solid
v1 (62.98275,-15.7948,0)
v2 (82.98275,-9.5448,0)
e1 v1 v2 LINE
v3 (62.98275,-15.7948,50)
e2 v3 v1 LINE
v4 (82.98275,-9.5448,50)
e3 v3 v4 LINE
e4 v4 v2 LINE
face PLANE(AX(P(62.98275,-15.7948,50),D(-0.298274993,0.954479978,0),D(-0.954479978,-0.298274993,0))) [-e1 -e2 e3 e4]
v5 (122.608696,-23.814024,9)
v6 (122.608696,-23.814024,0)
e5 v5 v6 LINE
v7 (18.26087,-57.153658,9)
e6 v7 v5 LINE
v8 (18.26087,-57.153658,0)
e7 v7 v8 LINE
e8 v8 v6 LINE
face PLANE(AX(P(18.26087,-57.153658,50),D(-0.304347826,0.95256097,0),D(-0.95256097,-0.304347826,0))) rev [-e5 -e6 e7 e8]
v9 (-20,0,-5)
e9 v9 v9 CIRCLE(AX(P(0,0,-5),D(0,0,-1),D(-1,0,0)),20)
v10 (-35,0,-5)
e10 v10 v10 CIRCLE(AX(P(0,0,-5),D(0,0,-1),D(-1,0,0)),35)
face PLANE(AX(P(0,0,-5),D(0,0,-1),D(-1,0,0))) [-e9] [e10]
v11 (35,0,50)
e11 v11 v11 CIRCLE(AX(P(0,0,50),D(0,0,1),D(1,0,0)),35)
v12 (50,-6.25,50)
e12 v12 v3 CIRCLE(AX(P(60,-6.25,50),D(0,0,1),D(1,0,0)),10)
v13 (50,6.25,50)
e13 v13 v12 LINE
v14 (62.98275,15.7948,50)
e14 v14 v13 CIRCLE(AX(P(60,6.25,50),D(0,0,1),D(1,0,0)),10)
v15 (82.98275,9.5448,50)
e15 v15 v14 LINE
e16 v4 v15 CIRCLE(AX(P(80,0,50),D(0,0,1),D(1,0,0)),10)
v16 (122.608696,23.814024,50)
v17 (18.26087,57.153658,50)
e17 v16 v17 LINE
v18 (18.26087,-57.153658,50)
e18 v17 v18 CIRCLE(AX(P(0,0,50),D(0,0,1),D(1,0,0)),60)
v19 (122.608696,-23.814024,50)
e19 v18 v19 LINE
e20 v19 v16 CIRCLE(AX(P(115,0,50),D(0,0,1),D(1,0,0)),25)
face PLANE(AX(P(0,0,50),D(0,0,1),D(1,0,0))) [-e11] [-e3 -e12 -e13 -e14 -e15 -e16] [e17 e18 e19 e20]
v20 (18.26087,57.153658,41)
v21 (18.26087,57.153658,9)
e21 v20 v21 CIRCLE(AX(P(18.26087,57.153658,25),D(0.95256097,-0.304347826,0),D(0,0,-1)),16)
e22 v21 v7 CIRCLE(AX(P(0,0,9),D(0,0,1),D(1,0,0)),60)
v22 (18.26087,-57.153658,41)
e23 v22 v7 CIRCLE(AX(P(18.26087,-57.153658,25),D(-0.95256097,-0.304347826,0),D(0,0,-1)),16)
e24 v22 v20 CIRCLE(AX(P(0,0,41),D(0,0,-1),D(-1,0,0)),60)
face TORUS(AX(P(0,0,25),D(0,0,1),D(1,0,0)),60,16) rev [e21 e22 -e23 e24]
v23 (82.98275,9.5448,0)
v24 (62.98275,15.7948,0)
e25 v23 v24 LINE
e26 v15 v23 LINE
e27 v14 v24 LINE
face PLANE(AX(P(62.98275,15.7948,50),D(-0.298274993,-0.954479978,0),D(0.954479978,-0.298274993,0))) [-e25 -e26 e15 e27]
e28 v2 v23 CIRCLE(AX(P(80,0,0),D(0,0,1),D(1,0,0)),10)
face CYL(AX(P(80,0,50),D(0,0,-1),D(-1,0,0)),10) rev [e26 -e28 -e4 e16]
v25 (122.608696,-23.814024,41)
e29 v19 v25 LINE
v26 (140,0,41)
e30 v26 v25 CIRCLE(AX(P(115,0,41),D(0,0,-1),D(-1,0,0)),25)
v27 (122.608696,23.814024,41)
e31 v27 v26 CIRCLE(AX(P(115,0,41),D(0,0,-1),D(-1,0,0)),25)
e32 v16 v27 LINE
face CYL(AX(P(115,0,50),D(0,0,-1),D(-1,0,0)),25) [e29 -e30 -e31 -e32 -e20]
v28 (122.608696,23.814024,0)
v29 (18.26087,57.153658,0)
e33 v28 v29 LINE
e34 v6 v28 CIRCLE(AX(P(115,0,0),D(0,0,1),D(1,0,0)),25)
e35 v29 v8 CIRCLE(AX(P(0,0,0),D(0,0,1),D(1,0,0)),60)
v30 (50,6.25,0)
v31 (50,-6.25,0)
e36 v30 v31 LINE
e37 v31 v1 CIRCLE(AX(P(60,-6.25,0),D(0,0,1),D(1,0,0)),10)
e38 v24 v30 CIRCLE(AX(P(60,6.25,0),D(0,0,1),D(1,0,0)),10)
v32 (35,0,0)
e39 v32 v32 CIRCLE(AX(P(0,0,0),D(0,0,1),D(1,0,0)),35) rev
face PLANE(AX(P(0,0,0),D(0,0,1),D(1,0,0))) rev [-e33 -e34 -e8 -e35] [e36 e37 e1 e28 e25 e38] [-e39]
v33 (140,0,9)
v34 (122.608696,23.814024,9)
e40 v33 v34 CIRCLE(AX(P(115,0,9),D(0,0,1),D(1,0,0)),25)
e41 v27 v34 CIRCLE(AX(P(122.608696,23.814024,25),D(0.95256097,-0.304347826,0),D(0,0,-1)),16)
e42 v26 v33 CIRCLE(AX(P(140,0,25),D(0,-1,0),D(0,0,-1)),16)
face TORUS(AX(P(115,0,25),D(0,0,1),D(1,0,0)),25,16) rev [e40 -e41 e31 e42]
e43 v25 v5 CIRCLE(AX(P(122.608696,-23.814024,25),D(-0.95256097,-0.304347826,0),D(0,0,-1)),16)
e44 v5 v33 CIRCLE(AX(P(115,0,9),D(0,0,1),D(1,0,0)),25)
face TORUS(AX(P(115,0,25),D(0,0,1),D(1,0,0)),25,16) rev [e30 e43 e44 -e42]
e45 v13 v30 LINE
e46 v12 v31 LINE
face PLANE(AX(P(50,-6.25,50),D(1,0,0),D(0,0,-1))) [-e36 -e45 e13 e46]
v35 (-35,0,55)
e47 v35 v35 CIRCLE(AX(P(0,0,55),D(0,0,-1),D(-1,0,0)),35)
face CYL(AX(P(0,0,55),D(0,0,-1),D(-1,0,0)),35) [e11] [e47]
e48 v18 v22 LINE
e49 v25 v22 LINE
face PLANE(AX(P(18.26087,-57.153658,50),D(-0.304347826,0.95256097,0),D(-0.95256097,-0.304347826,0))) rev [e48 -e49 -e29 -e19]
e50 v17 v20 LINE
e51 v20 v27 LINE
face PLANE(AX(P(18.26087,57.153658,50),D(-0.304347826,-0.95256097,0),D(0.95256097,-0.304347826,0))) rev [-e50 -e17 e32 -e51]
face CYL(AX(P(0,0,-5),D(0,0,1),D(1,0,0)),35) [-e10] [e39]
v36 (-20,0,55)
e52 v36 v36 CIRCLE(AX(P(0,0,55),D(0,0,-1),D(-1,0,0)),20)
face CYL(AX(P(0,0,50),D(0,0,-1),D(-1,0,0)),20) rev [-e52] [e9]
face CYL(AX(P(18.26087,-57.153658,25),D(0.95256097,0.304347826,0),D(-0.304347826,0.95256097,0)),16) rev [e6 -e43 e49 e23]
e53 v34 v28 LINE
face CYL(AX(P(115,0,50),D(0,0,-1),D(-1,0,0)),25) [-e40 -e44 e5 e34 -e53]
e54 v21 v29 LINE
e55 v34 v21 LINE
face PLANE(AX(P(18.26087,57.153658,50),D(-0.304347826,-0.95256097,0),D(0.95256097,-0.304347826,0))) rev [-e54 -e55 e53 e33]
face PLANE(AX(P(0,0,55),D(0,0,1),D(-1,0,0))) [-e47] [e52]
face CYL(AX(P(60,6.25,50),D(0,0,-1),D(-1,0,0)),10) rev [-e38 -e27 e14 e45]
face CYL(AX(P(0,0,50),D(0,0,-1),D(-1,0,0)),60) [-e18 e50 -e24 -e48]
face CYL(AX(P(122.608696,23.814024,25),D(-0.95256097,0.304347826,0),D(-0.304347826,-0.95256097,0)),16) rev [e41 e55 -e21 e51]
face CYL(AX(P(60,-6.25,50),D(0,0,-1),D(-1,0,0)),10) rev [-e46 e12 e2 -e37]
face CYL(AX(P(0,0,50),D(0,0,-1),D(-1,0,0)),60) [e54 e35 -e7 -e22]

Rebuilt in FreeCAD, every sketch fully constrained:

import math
import FreeCAD as App
import Part
import Sketcher

doc = App.newDocument("Part")
params = doc.addObject("Spreadsheet::Sheet", "Params")
for row, (alias, value) in enumerate([
    ("sketch1_diameter", "40 mm"),
    ("sketch1_radius", "60 mm"),
    ("sketch1_radius2", "25 mm"),
    ("sketch1_radius3", "10 mm"),
    ("sketch1_height", "12.5 mm"),
    ("pad1_length", "50 mm"),
    ("sketch2_diameter", "70 mm"),
    ("sketch2_diameter2", "40 mm"),
    ("pad2_length", "5 mm"),
    ("sketch3_diameter", "32 mm"),
    ("sketch4_radius", "60 mm"),
    ("sketch4_radius2", "25 mm"),
], start=1):
    params.set(f"A{row}", alias)
    params.set(f"B{row}", "=" + value)
    params.setAlias(f"B{row}", alias)

body = doc.addObject("PartDesign::Body", "Body")

sketch1 = body.newObject("Sketcher::SketchObject", "Sketch")
sketch1.AttachmentSupport = (doc.getObject("XY_Plane"), [""])
sketch1.MapMode = "FlatFace"
sketch1.addGeometry(Part.LineSegment(App.Vector(123, 24, 0), App.Vector(18, 57, 0)), False)
sketch1.addGeometry(Part.ArcOfCircle(Part.Circle(App.Vector(0, 0, 0), App.Vector(0, 0, 1), 60), math.radians(72), math.radians(288)), False)
sketch1.addGeometry(Part.LineSegment(App.Vector(18, -57, 0), App.Vector(123, -24, 0)), False)
sketch1.addGeometry(Part.ArcOfCircle(Part.Circle(App.Vector(115, 0, 0), App.Vector(0, 0, 1), 25), math.radians(-72), math.radians(72)), False)
sketch1.addGeometry(Part.LineSegment(App.Vector(50, -6, 0), App.Vector(50, 6, 0)), False)
sketch1.addGeometry(Part.ArcOfCircle(Part.Circle(App.Vector(60, 6, 0), App.Vector(0, 0, 1), 10), math.radians(73), math.radians(180)), False)
sketch1.addGeometry(Part.LineSegment(App.Vector(63, 16, 0), App.Vector(83, 10, 0)), False)
sketch1.addGeometry(Part.ArcOfCircle(Part.Circle(App.Vector(80, 0, 0), App.Vector(0, 0, 1), 10), math.radians(-73), math.radians(73)), False)
sketch1.addGeometry(Part.LineSegment(App.Vector(83, -10, 0), App.Vector(63, -16, 0)), False)
sketch1.addGeometry(Part.ArcOfCircle(Part.Circle(App.Vector(60, -6, 0), App.Vector(0, 0, 1), 10), math.radians(-180), math.radians(-73)), False)
sketch1.addGeometry(Part.Circle(App.Vector(0, 0, 0), App.Vector(0, 0, 1), 20), False)
sketch1.addConstraint(Sketcher.Constraint("Tangent", 0, 2, 1, 1))
sketch1.addConstraint(Sketcher.Constraint("Tangent", 1, 2, 2, 1))
sketch1.addConstraint(Sketcher.Constraint("Tangent", 2, 2, 3, 1))
sketch1.addConstraint(Sketcher.Constraint("Tangent", 3, 2, 0, 1))
sketch1.addConstraint(Sketcher.Constraint("Tangent", 4, 2, 5, 2))
sketch1.addConstraint(Sketcher.Constraint("Tangent", 5, 1, 6, 1))
sketch1.addConstraint(Sketcher.Constraint("Tangent", 6, 2, 7, 2))
sketch1.addConstraint(Sketcher.Constraint("Tangent", 7, 1, 8, 1))
sketch1.addConstraint(Sketcher.Constraint("Tangent", 8, 2, 9, 2))
sketch1.addConstraint(Sketcher.Constraint("Tangent", 9, 1, 4, 1))
sketch1.addConstraint(Sketcher.Constraint("Vertical", 4))
sketch1.addConstraint(Sketcher.Constraint("Coincident", 1, 3, -1, 1))
sketch1.addConstraint(Sketcher.Constraint("Coincident", 10, 3, -1, 1))
sketch1.addConstraint(Sketcher.Constraint("Equal", 5, 7))
sketch1.addConstraint(Sketcher.Constraint("Equal", 7, 9))
sketch1.addConstraint(Sketcher.Constraint("Symmetric", 6, 2, 7, 1, -1))
sketch1.addConstraint(Sketcher.Constraint("PointOnObject", 3, 3, -1))
sketch1.addConstraint(Sketcher.Constraint("Diameter", 10, 40.0))
sketch1.addConstraint(Sketcher.Constraint("Radius", 1, 60.0))
sketch1.addConstraint(Sketcher.Constraint("Radius", 3, 25.0))
sketch1.addConstraint(Sketcher.Constraint("Radius", 5, 10.0))
sketch1.addConstraint(Sketcher.Constraint("DistanceY", 4, 1, 4, 2, 12.5))
sketch1.addConstraint(Sketcher.Constraint("DistanceX", -1, 1, 3, 3, 115.0))
sketch1.addConstraint(Sketcher.Constraint("DistanceX", -1, 1, 5, 3, 60.0))
sketch1.addConstraint(Sketcher.Constraint("DistanceX", -1, 1, 7, 3, 80.0))
sketch1.setExpression("Constraints[17]", "Params.sketch1_diameter")
sketch1.setExpression("Constraints[18]", "Params.sketch1_radius")
sketch1.setExpression("Constraints[19]", "Params.sketch1_radius2")
sketch1.setExpression("Constraints[20]", "Params.sketch1_radius3")
sketch1.setExpression("Constraints[21]", "Params.sketch1_height")
pad1 = body.newObject("PartDesign::Pad", "Pad")
pad1.Profile = sketch1
pad1.setExpression("Length", "Params.pad1_length")

sketch2 = body.newObject("Sketcher::SketchObject", "Sketch001")
sketch2.AttachmentSupport = (doc.getObject("XY_Plane"), [""])
sketch2.MapMode = "FlatFace"
sketch2.AttachmentOffset = App.Placement(App.Vector(0, 0, -5), App.Rotation())
sketch2.addGeometry(Part.Circle(App.Vector(0, 0, 0), App.Vector(0, 0, 1), 35), False)
sketch2.addGeometry(Part.Circle(App.Vector(0, 0, 0), App.Vector(0, 0, 1), 20), False)
sketch2.addConstraint(Sketcher.Constraint("Coincident", 0, 3, -1, 1))
sketch2.addConstraint(Sketcher.Constraint("Coincident", 1, 3, -1, 1))
sketch2.addConstraint(Sketcher.Constraint("Diameter", 0, 70.0))
sketch2.addConstraint(Sketcher.Constraint("Diameter", 1, 40.0))
sketch2.setExpression("Constraints[2]", "Params.sketch2_diameter")
sketch2.setExpression("Constraints[3]", "Params.sketch2_diameter2")
pad2 = body.newObject("PartDesign::Pad", "Pad001")
pad2.Profile = sketch2
pad2.setExpression("Length", "Params.pad2_length")
doc.recompute()

datumplane = body.newObject("PartDesign::Plane", "DatumPlane")
datumplane.AttachmentSupport = (doc.getObject("XY_Plane"), [""])
datumplane.MapMode = "FlatFace"
datumplane.AttachmentOffset = App.Placement(App.Vector(0, 0, 25), App.Rotation())
mirrored = body.newObject("PartDesign::Mirrored", "Mirrored")
mirrored.Originals = [pad2]
mirrored.MirrorPlane = (datumplane, [""])
body.Tip = mirrored

sketch3 = body.newObject("Sketcher::SketchObject", "Sketch002")
sketch3.AttachmentSupport = (doc.getObject("XZ_Plane"), [""])
sketch3.MapMode = "FlatFace"
sketch3.addGeometry(Part.Circle(App.Vector(140, 25, 0), App.Vector(0, 0, 1), 16), False)
sketch3.addConstraint(Sketcher.Constraint("Diameter", 0, 32.0))
sketch3.addConstraint(Sketcher.Constraint("DistanceX", -1, 1, 0, 3, 140.0))
sketch3.addConstraint(Sketcher.Constraint("DistanceY", -1, 1, 0, 3, 25.0))
sketch3.setExpression("Constraints[0]", "Params.sketch3_diameter")

sketch4 = body.newObject("Sketcher::SketchObject", "Sketch003")
sketch4.AttachmentSupport = (doc.getObject("XY_Plane"), [""])
sketch4.MapMode = "FlatFace"
sketch4.AttachmentOffset = App.Placement(App.Vector(0, 0, 25), App.Rotation())
sketch4.addGeometry(Part.LineSegment(App.Vector(123, 24, 0), App.Vector(18, 57, 0)), False)
sketch4.addGeometry(Part.ArcOfCircle(Part.Circle(App.Vector(0, 0, 0), App.Vector(0, 0, 1), 60), math.radians(72), math.radians(288)), False)
sketch4.addGeometry(Part.LineSegment(App.Vector(18, -57, 0), App.Vector(123, -24, 0)), False)
sketch4.addGeometry(Part.ArcOfCircle(Part.Circle(App.Vector(115, 0, 0), App.Vector(0, 0, 1), 25), math.radians(-72), math.radians(72)), False)
sketch4.addConstraint(Sketcher.Constraint("Tangent", 0, 2, 1, 1))
sketch4.addConstraint(Sketcher.Constraint("Tangent", 1, 2, 2, 1))
sketch4.addConstraint(Sketcher.Constraint("Tangent", 2, 2, 3, 1))
sketch4.addConstraint(Sketcher.Constraint("Tangent", 3, 2, 0, 1))
sketch4.addConstraint(Sketcher.Constraint("Coincident", 1, 3, -1, 1))
sketch4.addConstraint(Sketcher.Constraint("PointOnObject", 3, 3, -1))
sketch4.addConstraint(Sketcher.Constraint("Radius", 1, 60.0))
sketch4.addConstraint(Sketcher.Constraint("Radius", 3, 25.0))
sketch4.addConstraint(Sketcher.Constraint("DistanceX", -1, 1, 3, 3, 115.0))
sketch4.setExpression("Constraints[6]", "Params.sketch4_radius")
sketch4.setExpression("Constraints[7]", "Params.sketch4_radius2")
doc.recompute()

subtractivepipe = body.newObject("PartDesign::SubtractivePipe", "SubtractivePipe")
subtractivepipe.Profile = sketch3
subtractivepipe.Spine = (sketch4, ["Edge1", "Edge2", "Edge3", "Edge4"])

doc.recompute()
